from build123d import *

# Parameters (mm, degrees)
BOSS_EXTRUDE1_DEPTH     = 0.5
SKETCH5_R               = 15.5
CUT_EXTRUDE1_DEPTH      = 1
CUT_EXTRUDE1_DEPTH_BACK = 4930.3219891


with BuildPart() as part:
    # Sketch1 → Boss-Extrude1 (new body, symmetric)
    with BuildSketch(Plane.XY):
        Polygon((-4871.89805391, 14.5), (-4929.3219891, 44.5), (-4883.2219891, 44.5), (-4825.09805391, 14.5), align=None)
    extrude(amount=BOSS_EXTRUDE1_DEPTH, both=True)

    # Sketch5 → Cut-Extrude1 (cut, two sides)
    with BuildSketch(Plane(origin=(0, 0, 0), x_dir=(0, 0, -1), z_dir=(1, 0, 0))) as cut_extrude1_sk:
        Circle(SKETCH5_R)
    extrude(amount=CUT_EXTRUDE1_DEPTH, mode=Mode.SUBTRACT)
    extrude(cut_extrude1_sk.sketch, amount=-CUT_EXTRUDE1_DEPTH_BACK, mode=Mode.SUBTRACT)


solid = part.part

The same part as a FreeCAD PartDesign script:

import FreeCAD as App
import Part
import Sketcher
from FreeCAD import Vector
Q = App.Units.Quantity


def add_polygon(sketch, points):
    """Adds a closed chain of lines whose ends are joined by coincident constraints."""
    first, n = sketch.GeometryCount, len(points)
    for a, b in zip(points, points[1:] + points[:1]):
        sketch.addGeometry(Part.LineSegment(App.Vector(*a, 0), App.Vector(*b, 0)), False)
    for i in range(n):
        sketch.addConstraint(Sketcher.Constraint("Coincident", first + i, 2, first + (i + 1) % n, 1))

doc = App.newDocument("Part")
body = doc.addObject("PartDesign::Body", "Body")

# Sketch on XY plane
sketch1 = body.newObject("Sketcher::SketchObject", "Sketch")
sketch1.AttachmentSupport = (doc.getObject("XY_Plane"), [""])
sketch1.MapMode = "FlatFace"
add_polygon(sketch1, [(-4929, 44), (-4872, 14), (-4825, 14), (-4883, 44)])  # lines 0-3
sketch1.addConstraint([
    Sketcher.Constraint("Horizontal", 1),
    Sketcher.Constraint("Horizontal", 3),
    Sketcher.Constraint("DistanceX", 1, 1, 1, 2, Q("46.8 mm")),
    Sketcher.Constraint("DistanceX", 3, 2, 3, 1, Q("46.1 mm")),
    Sketcher.Constraint("Angle", 2, Q("152.7 deg")),
    Sketcher.Constraint("DistanceY", 0, 2, 2, 2, Q("30 mm")),
    Sketcher.Constraint("DistanceY", -1, 1, 0, 2, Q("14.5 mm")),
    Sketcher.Constraint("DistanceX", 2, 2, -1, 1, Q("4883.221989 mm")),
])
pad1 = body.newObject("PartDesign::Pad", "Pad")
pad1.Profile = sketch1
pad1.Length = 1
pad1.Midplane = True

# Sketch on YZ plane
sketch2 = body.newObject("Sketcher::SketchObject", "Sketch001")
sketch2.AttachmentSupport = (doc.getObject("YZ_Plane"), [""])
sketch2.MapMode = "FlatFace"
sketch2.addGeometry(Part.Circle(Vector(0, 0, 0), Vector(0, 0, 1), 16), False)
sketch2.addConstraint([
    Sketcher.Constraint("Coincident", 0, 3, -1, 1),
    Sketcher.Constraint("Diameter", 0, Q("31 mm")),
])
pocket1 = body.newObject("PartDesign::Pocket", "Pocket")
pocket1.Profile = sketch2
pocket1.Type = "ThroughAll"
pocket1.Midplane = True

doc.recompute()
